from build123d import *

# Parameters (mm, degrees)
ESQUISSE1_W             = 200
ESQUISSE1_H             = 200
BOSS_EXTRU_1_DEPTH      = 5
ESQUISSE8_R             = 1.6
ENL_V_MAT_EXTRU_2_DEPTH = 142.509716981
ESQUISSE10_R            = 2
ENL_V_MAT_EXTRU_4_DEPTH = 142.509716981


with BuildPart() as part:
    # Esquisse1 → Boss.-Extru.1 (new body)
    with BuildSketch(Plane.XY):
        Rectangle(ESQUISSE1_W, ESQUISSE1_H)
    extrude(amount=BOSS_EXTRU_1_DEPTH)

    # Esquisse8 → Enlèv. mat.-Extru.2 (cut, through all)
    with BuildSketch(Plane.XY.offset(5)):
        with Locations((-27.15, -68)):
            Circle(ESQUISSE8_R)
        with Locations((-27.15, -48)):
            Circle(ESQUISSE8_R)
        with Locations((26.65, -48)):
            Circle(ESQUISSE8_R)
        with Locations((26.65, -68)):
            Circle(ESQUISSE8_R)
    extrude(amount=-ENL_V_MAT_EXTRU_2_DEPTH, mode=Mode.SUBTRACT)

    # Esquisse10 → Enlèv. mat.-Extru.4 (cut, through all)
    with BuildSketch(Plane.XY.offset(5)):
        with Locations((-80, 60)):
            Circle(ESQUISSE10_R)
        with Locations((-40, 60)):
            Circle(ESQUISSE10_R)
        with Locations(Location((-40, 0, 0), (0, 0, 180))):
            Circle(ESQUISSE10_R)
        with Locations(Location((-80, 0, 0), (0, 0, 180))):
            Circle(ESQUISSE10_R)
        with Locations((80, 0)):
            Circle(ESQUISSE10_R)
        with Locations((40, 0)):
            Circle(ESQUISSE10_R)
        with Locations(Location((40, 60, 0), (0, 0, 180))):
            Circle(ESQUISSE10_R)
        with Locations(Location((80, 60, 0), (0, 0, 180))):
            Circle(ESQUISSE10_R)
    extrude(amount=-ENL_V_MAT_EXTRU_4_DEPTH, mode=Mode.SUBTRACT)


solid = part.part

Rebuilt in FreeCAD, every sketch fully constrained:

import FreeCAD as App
import Part
import Sketcher
from FreeCAD import Vector

doc = App.newDocument("Part")
body = doc.addObject("PartDesign::Body", "Body")

# Sketch on XY plane
sketch1 = body.newObject("Sketcher::SketchObject", "Sketch")
sketch1.AttachmentSupport = (doc.getObject("XY_Plane"), [""])
sketch1.MapMode = "FlatFace"
sketch1.addGeometry(Part.LineSegment(Vector(-100, 100, 0), Vector(-100, -100, 0)), False)
sketch1.addGeometry(Part.LineSegment(Vector(-100, -100, 0), Vector(100, -100, 0)), False)
sketch1.addGeometry(Part.LineSegment(Vector(100, -100, 0), Vector(100, 100, 0)), False)
sketch1.addGeometry(Part.LineSegment(Vector(100, 100, 0), Vector(-100, 100, 0)), False)
sketch1.addConstraint(Sketcher.Constraint("Coincident", 0, 2, 1, 1))
sketch1.addConstraint(Sketcher.Constraint("Coincident", 1, 2, 2, 1))
sketch1.addConstraint(Sketcher.Constraint("Coincident", 2, 2, 3, 1))
sketch1.addConstraint(Sketcher.Constraint("Coincident", 3, 2, 0, 1))
sketch1.addConstraint(Sketcher.Constraint("Vertical", 0))
sketch1.addConstraint(Sketcher.Constraint("Horizontal", 1))
sketch1.addConstraint(Sketcher.Constraint("Vertical", 2))
sketch1.addConstraint(Sketcher.Constraint("Horizontal", 3))
sketch1.addConstraint(Sketcher.Constraint("Symmetric", 0, 2, 2, 2, -1, 1))
sketch1.addConstraint(Sketcher.Constraint("Equal", 3, 0))
sketch1.addConstraint(Sketcher.Constraint("DistanceX", 1, 1, 1, 2, 200.0))
pad1 = body.newObject("PartDesign::Pad", "Pad")
pad1.Profile = sketch1
pad1.Length = 5

# Sketch on XY plane
sketch2 = body.newObject("Sketcher::SketchObject", "Sketch001")
sketch2.AttachmentSupport = (doc.getObject("XY_Plane"), [""])
sketch2.MapMode = "FlatFace"
sketch2.AttachmentOffset = App.Placement(Vector(0, 0, 5), App.Rotation())
sketch2.addGeometry(Part.Circle(Vector(-27.1, -68, 0), Vector(0, 0, 1), 1.6), False)
sketch2.addGeometry(Part.Circle(Vector(-27.1, -48, 0), Vector(0, 0, 1), 1.6), False)
sketch2.addGeometry(Part.Circle(Vector(26.6, -48, 0), Vector(0, 0, 1), 1.6), False)
sketch2.addGeometry(Part.Circle(Vector(26.6, -68, 0), Vector(0, 0, 1), 1.6), False)
sketch2.addConstraint(Sketcher.Constraint("Equal", 0, 1))
sketch2.addConstraint(Sketcher.Constraint("Equal", 1, 2))
sketch2.addConstraint(Sketcher.Constraint("Equal", 2, 3))
sketch2.addConstraint(Sketcher.Constraint("Horizontal", 1, 3, 2, 3))
sketch2.addConstraint(Sketcher.Constraint("Horizontal", 0, 3, 3, 3))
sketch2.addConstraint(Sketcher.Constraint("Vertical", 0, 3, 1, 3))
sketch2.addConstraint(Sketcher.Constraint("Vertical", 2, 3, 3, 3))
sketch2.addConstraint(Sketcher.Constraint("Diameter", 0, 3.2))
sketch2.addConstraint(Sketcher.Constraint("DistanceY", 0, 3, -1, 1, 68.0))
sketch2.addConstraint(Sketcher.Constraint("DistanceY", 1, 3, -1, 1, 48.0))
sketch2.addConstraint(Sketcher.Constraint("DistanceX", 1, 3, 2, 3, 53.8))
sketch2.addConstraint(Sketcher.Constraint("DistanceX", 0, 3, -1, 1, 27.15))
pocket1 = body.newObject("PartDesign::Pocket", "Pocket")
pocket1.Profile = sketch2
pocket1.Type = "ThroughAll"

# Sketch on XY plane
sketch3 = body.newObject("Sketcher::SketchObject", "Sketch002")
sketch3.AttachmentSupport = (doc.getObject("XY_Plane"), [""])
sketch3.MapMode = "FlatFace"
sketch3.AttachmentOffset = App.Placement(Vector(0, 0, 5), App.Rotation())
sketch3.addGeometry(Part.Circle(Vector(-80, 60, 0), Vector(0, 0, 1), 2), False)
sketch3.addGeometry(Part.Circle(Vector(-40, 60, 0), Vector(0, 0, 1), 2), False)
sketch3.addGeometry(Part.Circle(Vector(-40, 0, 0), Vector(0, 0, 1), 2), False)
sketch3.addGeometry(Part.Circle(Vector(-80, 0, 0), Vector(0, 0, 1), 2), False)
sketch3.addGeometry(Part.Circle(Vector(80, 0, 0), Vector(0, 0, 1), 2), False)
sketch3.addGeometry(Part.Circle(Vector(40, 0, 0), Vector(0, 0, 1), 2), False)
sketch3.addGeometry(Part.Circle(Vector(40, 60, 0), Vector(0, 0, 1), 2), False)
sketch3.addGeometry(Part.Circle(Vector(80, 60, 0), Vector(0, 0, 1), 2), False)
sketch3.addConstraint(Sketcher.Constraint("Equal", 0, 1))
sketch3.addConstraint(Sketcher.Constraint("Equal", 1, 2))
sketch3.addConstraint(Sketcher.Constraint("Equal", 2, 3))
sketch3.addConstraint(Sketcher.Constraint("Equal", 3, 4))
sketch3.addConstraint(Sketcher.Constraint("Equal", 4, 5))
sketch3.addConstraint(Sketcher.Constraint("Equal", 5, 6))
sketch3.addConstraint(Sketcher.Constraint("Equal", 6, 7))
sketch3.addConstraint(Sketcher.Constraint("Symmetric", 3, 3, 4, 3, -1, 1))
sketch3.addConstraint(Sketcher.Constraint("Symmetric", 2, 3, 5, 3, -1, 1))
sketch3.addConstraint(Sketcher.Constraint("Symmetric", 1, 3, 6, 3, -2))
sketch3.addConstraint(Sketcher.Constraint("Symmetric", 0, 3, 7, 3, -2))
sketch3.addConstraint(Sketcher.Constraint("PointOnObject", 2, 3, -1))
sketch3.addConstraint(Sketcher.Constraint("PointOnObject", 3, 3, -1))
sketch3.addConstraint(Sketcher.Constraint("Horizontal", 0, 3, 1, 3))
sketch3.addConstraint(Sketcher.Constraint("Vertical", 1, 3, 2, 3))
sketch3.addConstraint(Sketcher.Constraint("Vertical", 0, 3, 3, 3))
sketch3.addConstraint(Sketcher.Constraint("Diameter", 0, 4.0))
sketch3.addConstraint(Sketcher.Constraint("DistanceX", 0, 3, -1, 1, 80.0))
sketch3.addConstraint(Sketcher.Constraint("DistanceY", -1, 1, 0, 3, 60.0))
sketch3.addConstraint(Sketcher.Constraint("DistanceX", 1, 3, -1, 1, 40.0))
pocket2 = body.newObject("PartDesign::Pocket", "Pocket001")
pocket2.Profile = sketch3
pocket2.Type = "ThroughAll"

doc.recompute()
